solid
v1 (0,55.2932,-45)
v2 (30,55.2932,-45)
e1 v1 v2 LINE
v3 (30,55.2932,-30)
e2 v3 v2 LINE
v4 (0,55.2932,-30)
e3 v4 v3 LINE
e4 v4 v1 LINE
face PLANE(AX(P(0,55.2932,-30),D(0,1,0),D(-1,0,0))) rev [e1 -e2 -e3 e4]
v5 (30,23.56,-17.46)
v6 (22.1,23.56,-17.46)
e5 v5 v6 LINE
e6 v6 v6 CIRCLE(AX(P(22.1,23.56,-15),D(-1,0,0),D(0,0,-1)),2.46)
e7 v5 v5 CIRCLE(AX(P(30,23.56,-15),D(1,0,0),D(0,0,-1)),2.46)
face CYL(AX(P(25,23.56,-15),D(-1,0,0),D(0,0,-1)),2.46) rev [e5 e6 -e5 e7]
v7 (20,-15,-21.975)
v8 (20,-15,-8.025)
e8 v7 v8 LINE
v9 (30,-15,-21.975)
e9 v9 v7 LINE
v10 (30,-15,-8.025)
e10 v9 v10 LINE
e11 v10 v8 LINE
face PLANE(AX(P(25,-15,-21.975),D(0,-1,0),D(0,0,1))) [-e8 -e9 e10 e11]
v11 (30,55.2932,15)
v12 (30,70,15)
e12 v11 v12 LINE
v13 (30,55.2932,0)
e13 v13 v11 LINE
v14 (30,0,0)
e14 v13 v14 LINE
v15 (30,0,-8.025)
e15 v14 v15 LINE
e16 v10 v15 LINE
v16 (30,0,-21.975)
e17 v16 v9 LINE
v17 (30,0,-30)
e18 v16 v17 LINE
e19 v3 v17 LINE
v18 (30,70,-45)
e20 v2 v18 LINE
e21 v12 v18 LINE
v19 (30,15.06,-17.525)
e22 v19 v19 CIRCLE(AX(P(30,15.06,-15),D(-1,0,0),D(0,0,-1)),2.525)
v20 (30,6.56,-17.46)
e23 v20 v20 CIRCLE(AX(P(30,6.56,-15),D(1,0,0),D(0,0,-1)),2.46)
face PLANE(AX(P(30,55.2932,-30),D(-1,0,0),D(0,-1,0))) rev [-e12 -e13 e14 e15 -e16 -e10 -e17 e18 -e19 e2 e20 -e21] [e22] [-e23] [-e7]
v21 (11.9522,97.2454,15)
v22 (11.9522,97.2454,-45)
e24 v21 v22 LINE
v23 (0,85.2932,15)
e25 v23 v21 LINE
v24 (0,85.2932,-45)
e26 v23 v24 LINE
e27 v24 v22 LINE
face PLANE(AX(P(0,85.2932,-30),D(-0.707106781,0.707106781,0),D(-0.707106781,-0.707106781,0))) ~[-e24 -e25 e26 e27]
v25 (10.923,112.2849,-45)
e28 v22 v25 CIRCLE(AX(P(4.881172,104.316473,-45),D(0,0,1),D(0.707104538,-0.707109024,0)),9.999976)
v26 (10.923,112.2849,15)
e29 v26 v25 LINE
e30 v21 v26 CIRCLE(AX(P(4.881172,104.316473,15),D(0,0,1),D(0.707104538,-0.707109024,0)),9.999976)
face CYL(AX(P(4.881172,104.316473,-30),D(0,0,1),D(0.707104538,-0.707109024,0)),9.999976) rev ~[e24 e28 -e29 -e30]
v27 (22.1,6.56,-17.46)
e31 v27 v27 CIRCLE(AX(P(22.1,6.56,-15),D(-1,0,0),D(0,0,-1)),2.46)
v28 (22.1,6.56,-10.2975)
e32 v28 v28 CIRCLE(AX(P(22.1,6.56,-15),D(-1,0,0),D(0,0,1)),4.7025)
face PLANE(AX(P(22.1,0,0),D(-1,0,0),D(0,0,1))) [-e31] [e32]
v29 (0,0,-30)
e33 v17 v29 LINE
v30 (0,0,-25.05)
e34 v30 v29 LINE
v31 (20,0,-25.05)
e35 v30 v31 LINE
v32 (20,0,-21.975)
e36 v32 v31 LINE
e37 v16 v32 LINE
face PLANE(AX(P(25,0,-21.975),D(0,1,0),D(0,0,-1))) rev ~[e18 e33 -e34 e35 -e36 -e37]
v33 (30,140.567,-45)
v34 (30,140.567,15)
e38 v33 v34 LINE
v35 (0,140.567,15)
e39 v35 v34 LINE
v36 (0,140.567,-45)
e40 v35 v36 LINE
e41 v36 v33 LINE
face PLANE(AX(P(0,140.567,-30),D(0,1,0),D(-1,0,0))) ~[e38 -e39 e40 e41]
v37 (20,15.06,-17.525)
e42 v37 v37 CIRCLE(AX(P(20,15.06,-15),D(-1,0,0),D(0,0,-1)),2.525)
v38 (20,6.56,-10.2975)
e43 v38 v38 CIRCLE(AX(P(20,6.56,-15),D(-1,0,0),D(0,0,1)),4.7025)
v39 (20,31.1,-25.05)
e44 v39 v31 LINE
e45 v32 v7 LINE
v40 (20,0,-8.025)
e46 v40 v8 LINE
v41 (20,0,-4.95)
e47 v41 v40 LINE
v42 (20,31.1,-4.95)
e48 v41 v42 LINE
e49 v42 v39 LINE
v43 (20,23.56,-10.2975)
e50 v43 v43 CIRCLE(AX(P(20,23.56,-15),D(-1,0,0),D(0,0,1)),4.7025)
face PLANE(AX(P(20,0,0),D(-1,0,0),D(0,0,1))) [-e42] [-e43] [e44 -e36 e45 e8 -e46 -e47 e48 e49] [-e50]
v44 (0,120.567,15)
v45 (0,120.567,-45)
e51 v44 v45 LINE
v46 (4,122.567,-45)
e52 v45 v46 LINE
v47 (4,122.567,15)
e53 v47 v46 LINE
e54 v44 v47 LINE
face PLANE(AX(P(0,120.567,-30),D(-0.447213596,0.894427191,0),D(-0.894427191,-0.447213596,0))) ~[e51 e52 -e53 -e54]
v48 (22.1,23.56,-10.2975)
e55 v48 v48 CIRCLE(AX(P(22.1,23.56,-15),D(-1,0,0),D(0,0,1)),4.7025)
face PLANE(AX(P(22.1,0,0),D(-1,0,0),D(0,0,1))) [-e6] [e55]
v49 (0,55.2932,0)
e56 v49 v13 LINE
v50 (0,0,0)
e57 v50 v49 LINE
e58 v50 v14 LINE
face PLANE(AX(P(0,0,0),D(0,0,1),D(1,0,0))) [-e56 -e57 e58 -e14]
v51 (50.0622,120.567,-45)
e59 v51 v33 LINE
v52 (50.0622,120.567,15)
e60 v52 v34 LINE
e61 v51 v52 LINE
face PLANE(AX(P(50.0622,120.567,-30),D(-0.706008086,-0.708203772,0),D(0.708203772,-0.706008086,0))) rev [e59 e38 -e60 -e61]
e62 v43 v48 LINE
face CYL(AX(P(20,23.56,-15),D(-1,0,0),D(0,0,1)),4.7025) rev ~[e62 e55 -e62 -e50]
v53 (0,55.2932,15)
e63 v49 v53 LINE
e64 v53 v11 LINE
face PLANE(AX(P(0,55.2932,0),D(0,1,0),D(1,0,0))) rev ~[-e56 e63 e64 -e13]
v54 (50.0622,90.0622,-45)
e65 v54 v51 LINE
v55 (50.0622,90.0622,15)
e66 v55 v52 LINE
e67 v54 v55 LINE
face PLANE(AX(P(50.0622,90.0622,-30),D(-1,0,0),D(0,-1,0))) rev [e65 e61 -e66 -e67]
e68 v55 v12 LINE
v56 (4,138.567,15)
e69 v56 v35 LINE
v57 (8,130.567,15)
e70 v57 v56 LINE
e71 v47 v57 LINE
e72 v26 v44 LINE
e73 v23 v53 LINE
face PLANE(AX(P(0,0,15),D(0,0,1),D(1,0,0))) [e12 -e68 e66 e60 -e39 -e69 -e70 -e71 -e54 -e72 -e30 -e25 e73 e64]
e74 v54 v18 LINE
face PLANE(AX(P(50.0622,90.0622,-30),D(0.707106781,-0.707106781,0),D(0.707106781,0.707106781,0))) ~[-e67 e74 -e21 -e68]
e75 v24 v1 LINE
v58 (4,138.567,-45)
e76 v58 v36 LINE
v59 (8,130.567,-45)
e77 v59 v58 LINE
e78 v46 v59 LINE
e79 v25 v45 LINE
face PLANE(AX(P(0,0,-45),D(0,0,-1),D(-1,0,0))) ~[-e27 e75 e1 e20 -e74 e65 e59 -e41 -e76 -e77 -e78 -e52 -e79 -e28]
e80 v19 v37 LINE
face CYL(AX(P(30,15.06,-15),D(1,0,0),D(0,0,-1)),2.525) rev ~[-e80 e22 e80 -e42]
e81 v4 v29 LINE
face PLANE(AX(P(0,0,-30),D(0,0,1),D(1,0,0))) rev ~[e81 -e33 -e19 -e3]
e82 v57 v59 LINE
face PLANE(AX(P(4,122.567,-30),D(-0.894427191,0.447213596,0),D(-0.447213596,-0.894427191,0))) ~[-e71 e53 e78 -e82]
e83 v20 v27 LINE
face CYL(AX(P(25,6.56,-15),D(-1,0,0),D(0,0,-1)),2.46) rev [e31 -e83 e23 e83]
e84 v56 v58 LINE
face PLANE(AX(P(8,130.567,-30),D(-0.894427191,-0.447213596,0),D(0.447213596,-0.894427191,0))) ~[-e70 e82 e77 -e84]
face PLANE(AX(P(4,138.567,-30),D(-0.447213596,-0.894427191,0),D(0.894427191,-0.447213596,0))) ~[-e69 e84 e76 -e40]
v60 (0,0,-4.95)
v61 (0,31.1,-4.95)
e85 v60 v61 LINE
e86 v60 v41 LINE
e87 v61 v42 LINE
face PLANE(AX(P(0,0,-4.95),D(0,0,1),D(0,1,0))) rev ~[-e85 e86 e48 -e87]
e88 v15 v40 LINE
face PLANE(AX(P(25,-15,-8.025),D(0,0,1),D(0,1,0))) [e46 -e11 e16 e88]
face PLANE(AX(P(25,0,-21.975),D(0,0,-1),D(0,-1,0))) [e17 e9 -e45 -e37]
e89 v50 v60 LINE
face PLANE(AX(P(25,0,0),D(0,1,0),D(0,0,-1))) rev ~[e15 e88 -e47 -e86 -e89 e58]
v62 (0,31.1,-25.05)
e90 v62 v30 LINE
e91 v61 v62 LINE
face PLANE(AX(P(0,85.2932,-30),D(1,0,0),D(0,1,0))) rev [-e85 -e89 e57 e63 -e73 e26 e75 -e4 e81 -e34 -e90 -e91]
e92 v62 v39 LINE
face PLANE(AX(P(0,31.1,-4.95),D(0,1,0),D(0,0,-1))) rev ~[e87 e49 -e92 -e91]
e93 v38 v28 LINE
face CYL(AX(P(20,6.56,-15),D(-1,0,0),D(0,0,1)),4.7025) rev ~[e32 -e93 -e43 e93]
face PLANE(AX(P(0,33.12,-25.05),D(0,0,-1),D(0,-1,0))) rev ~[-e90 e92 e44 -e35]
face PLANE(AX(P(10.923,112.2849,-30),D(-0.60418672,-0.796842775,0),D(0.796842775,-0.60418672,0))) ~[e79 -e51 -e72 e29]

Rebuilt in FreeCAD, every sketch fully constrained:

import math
import FreeCAD as App
import Part
import Sketcher
from FreeCAD import Vector
Q = App.Units.Quantity


def add_polygon(sketch, points):
    """Adds a closed chain of lines whose ends are joined by coincident constraints."""
    first, n = sketch.GeometryCount, len(points)
    for a, b in zip(points, points[1:] + points[:1]):
        sketch.addGeometry(Part.LineSegment(App.Vector(*a, 0), App.Vector(*b, 0)), False)
    for i in range(n):
        sketch.addConstraint(Sketcher.Constraint("Coincident", first + i, 2, first + (i + 1) % n, 1))

doc = App.newDocument("Part")
body = doc.addObject("PartDesign::Body", "Body")

sketch1 = body.newObject("Sketcher::SketchObject", "Sketch")
sketch1.AttachmentSupport = (doc.getObject("XY_Plane"), [""])
sketch1.MapMode = "FlatFace"
add_polygon(sketch1, [(0, 40), (0, 0), (25, 0), (25, 40)])
sketch1.addConstraint(Sketcher.Constraint("Vertical", 0))
sketch1.addConstraint(Sketcher.Constraint("Horizontal", 1))
sketch1.addConstraint(Sketcher.Constraint("Vertical", 2))
sketch1.addConstraint(Sketcher.Constraint("Horizontal", 3))
sketch1.addConstraint(Sketcher.Constraint("Coincident", 0, 2, -1, 1))
sketch1.addConstraint(Sketcher.Constraint("DistanceX", 1, 1, 1, 2, Q("25 mm")))
sketch1.addConstraint(Sketcher.Constraint("DistanceY", 0, 2, 0, 1, Q("40 mm")))
pad1 = body.newObject("PartDesign::Pad", "Pad")
pad1.Profile = sketch1
pad1.Length = 30
pad1.Reversed = True

sketch2 = body.newObject("Sketcher::SketchObject", "Sketch001")
sketch2.AttachmentSupport = (doc.getObject("YZ_Plane"), [""])
sketch2.MapMode = "FlatFace"
sketch2.AttachmentOffset = App.Placement(Vector(0, 0, 25), App.Rotation())
sketch2.addGeometry(Part.Circle(Vector(6.6, -15, 0), Vector(0, 0, 1), 2.5), False)
sketch2.addConstraint(Sketcher.Constraint("Diameter", 0, Q("4.92 mm")))
sketch2.addConstraint(Sketcher.Constraint("DistanceY", 0, 3, -1, 1, Q("15 mm")))
sketch2.addConstraint(Sketcher.Constraint("DistanceX", -1, 1, 0, 3, Q("6.56 mm")))
pocket1 = body.newObject("PartDesign::Pocket", "Pocket")
pocket1.Profile = sketch2
pocket1.Length = 30

sketch3 = body.newObject("Sketcher::SketchObject", "Sketch002")
sketch3.AttachmentSupport = (doc.getObject("YZ_Plane"), [""])
sketch3.MapMode = "FlatFace"
add_polygon(sketch3, [(0, -25), (0, -5), (33, -5), (33, -25)])
sketch3.addConstraint(Sketcher.Constraint("Vertical", 0))
sketch3.addConstraint(Sketcher.Constraint("Horizontal", 1))
sketch3.addConstraint(Sketcher.Constraint("Vertical", 2))
sketch3.addConstraint(Sketcher.Constraint("Horizontal", 3))
sketch3.addConstraint(Sketcher.Constraint("PointOnObject", 0, 2, -2))
sketch3.addConstraint(Sketcher.Constraint("DistanceY", 0, 1, 0, 2, Q("20.1 mm")))
sketch3.addConstraint(Sketcher.Constraint("DistanceX", 1, 1, 1, 2, Q("33.12 mm")))
sketch3.addConstraint(Sketcher.Constraint("DistanceY", 0, 2, -1, 1, Q("4.95 mm")))
pocket2 = body.newObject("PartDesign::Pocket", "Pocket001")
pocket2.Profile = sketch3
pocket2.Length = 20
pocket2.Reversed = True

sketch4 = body.newObject("Sketcher::SketchObject", "Sketch003")
sketch4.AttachmentSupport = (doc.getObject("XZ_Plane"), [""])
sketch4.MapMode = "FlatFace"
add_polygon(sketch4, [(25, -8), (20, -8), (20, -22), (25, -22)])
sketch4.addConstraint(Sketcher.Constraint("Horizontal", 0))
sketch4.addConstraint(Sketcher.Constraint("Vertical", 1))
sketch4.addConstraint(Sketcher.Constraint("Horizontal", 2))
sketch4.addConstraint(Sketcher.Constraint("Vertical", 3))
sketch4.addConstraint(Sketcher.Constraint("DistanceY", 1, 2, 1, 1, Q("13.95 mm")))
sketch4.addConstraint(Sketcher.Constraint("DistanceX", 0, 2, 0, 1, Q("5 mm")))
sketch4.addConstraint(Sketcher.Constraint("DistanceX", -1, 1, 0, 2, Q("20 mm")))
sketch4.addConstraint(Sketcher.Constraint("DistanceY", 0, 2, -1, 1, Q("8.025 mm")))
pad2 = body.newObject("PartDesign::Pad", "Pad001")
pad2.Profile = sketch4
pad2.Length = 15

sketch5 = body.newObject("Sketcher::SketchObject", "Sketch004")
sketch5.AttachmentSupport = (doc.getObject("YZ_Plane"), [""])
sketch5.MapMode = "FlatFace"
sketch5.AttachmentOffset = App.Placement(Vector(0, 0, 20), App.Rotation())
sketch5.addGeometry(Part.Circle(Vector(6.6, -15, 0), Vector(0, 0, 1), 4.7), False)
sketch5.addGeometry(Part.Circle(Vector(6.6, -15, 0), Vector(0, 0, 1), 2.5), False)
sketch5.addConstraint(Sketcher.Constraint("Coincident", 1, 3, 0, 3))
sketch5.addConstraint(Sketcher.Constraint("Diameter", 0, Q("9.405 mm")))
sketch5.addConstraint(Sketcher.Constraint("Diameter", 1, Q("4.92 mm")))
sketch5.addConstraint(Sketcher.Constraint("DistanceY", 0, 3, -1, 1, Q("15 mm")))
sketch5.addConstraint(Sketcher.Constraint("DistanceX", -1, 1, 0, 3, Q("6.56 mm")))
pocket3 = body.newObject("PartDesign::Pocket", "Pocket002")
pocket3.Profile = sketch5
pocket3.Length = 2.1
pocket3.Reversed = True

sketch6 = body.newObject("Sketcher::SketchObject", "Sketch005")
sketch6.AttachmentSupport = (doc.getObject("YZ_Plane"), [""])
sketch6.MapMode = "FlatFace"
sketch6.AttachmentOffset = App.Placement(Vector(0, 0, 25), App.Rotation())
sketch6.addGeometry(Part.Circle(Vector(23.6, -15, 0), Vector(0, 0, 1), 2.5), False)
sketch6.addConstraint(Sketcher.Constraint("Diameter", 0, Q("4.92 mm")))
sketch6.addConstraint(Sketcher.Constraint("DistanceY", 0, 3, -1, 1, Q("15 mm")))
sketch6.addConstraint(Sketcher.Constraint("DistanceX", -1, 1, 0, 3, Q("23.56 mm")))
pocket4 = body.newObject("PartDesign::Pocket", "Pocket003")
pocket4.Profile = sketch6
pocket4.Length = 10

sketch7 = body.newObject("Sketcher::SketchObject", "Sketch006")
sketch7.AttachmentSupport = (doc.getObject("YZ_Plane"), [""])
sketch7.MapMode = "FlatFace"
sketch7.AttachmentOffset = App.Placement(Vector(0, 0, 20), App.Rotation())
sketch7.addGeometry(Part.Circle(Vector(23.6, -15, 0), Vector(0, 0, 1), 4.7), False)
sketch7.addGeometry(Part.Circle(Vector(23.6, -15, 0), Vector(0, 0, 1), 2.5), False)
sketch7.addConstraint(Sketcher.Constraint("Coincident", 1, 3, 0, 3))
sketch7.addConstraint(Sketcher.Constraint("Diameter", 0, Q("9.405 mm")))
sketch7.addConstraint(Sketcher.Constraint("Diameter", 1, Q("4.92 mm")))
sketch7.addConstraint(Sketcher.Constraint("DistanceY", 0, 3, -1, 1, Q("15 mm")))
sketch7.addConstraint(Sketcher.Constraint("DistanceX", -1, 1, 0, 3, Q("23.56 mm")))
pocket5 = body.newObject("PartDesign::Pocket", "Pocket004")
pocket5.Profile = sketch7
pocket5.Length = 2.1
pocket5.Reversed = True

sketch8 = body.newObject("Sketcher::SketchObject", "Sketch007")
sketch8.AttachmentSupport = (doc.getObject("YZ_Plane"), [""])
sketch8.MapMode = "FlatFace"
sketch8.AttachmentOffset = App.Placement(Vector(0, 0, 25), App.Rotation())
add_polygon(sketch8, [(0, -30), (40, -30), (40, 0), (0, 0), (0, -8), (-15, -8), (-15, -22), (0, -22)])
sketch8.addGeometry(Part.Circle(Vector(6.6, -15, 0), Vector(0, 0, 1), 2.5), False)
sketch8.addGeometry(Part.Circle(Vector(23.6, -15, 0), Vector(0, 0, 1), 2.5), False)
sketch8.addConstraint(Sketcher.Constraint("Horizontal", 0))
sketch8.addConstraint(Sketcher.Constraint("Vertical", 1))
sketch8.addConstraint(Sketcher.Constraint("Horizontal", 2))
sketch8.addConstraint(Sketcher.Constraint("Vertical", 3))
sketch8.addConstraint(Sketcher.Constraint("Horizontal", 4))
sketch8.addConstraint(Sketcher.Constraint("Vertical", 5))
sketch8.addConstraint(Sketcher.Constraint("Horizontal", 6))
sketch8.addConstraint(Sketcher.Constraint("Vertical", 7))
sketch8.addConstraint(Sketcher.Constraint("Coincident", 2, 2, -1, 1))
sketch8.addConstraint(Sketcher.Constraint("Equal", 8, 9))
sketch8.addConstraint(Sketcher.Constraint("PointOnObject", 6, 2, -2))
sketch8.addConstraint(Sketcher.Constraint("Horizontal", 8, 3, 9, 3))
sketch8.addConstraint(Sketcher.Constraint("Equal", 3, 7))
sketch8.addConstraint(Sketcher.Constraint("Diameter", 8, Q("4.92 mm")))
sketch8.addConstraint(Sketcher.Constraint("DistanceX", 0, 1, 0, 2, Q("40 mm")))
sketch8.addConstraint(Sketcher.Constraint("DistanceX", 4, 2, 4, 1, Q("15 mm")))
sketch8.addConstraint(Sketcher.Constraint("DistanceY", 1, 1, 1, 2, Q("30 mm")))
sketch8.addConstraint(Sketcher.Constraint("DistanceY", 8, 3, -1, 1, Q("15 mm")))
sketch8.addConstraint(Sketcher.Constraint("DistanceX", 8, 3, 9, 3, Q("17 mm")))
sketch8.addConstraint(Sketcher.Constraint("DistanceY", 5, 2, 5, 1, Q("13.95 mm")))
sketch8.addConstraint(Sketcher.Constraint("DistanceX", -1, 1, 8, 3, Q("6.56 mm")))
pad3 = body.newObject("PartDesign::Pad", "Pad002")
pad3.Profile = sketch8
pad3.Length = 5

sketch9 = body.newObject("Sketcher::SketchObject", "Sketch008")
sketch9.AttachmentSupport = (doc.getObject("XZ_Plane"), [""])
sketch9.MapMode = "FlatFace"
sketch9.AttachmentOffset = App.Placement(Vector(0, 0, -40), App.Rotation())
add_polygon(sketch9, [(30, -30), (0, -30), (0, 0), (30, 0)])
sketch9.addConstraint(Sketcher.Constraint("Horizontal", 0))
sketch9.addConstraint(Sketcher.Constraint("Vertical", 1))
sketch9.addConstraint(Sketcher.Constraint("Horizontal", 2))
sketch9.addConstraint(Sketcher.Constraint("Vertical", 3))
sketch9.addConstraint(Sketcher.Constraint("Coincident", 1, 2, -1, 1))
sketch9.addConstraint(Sketcher.Constraint("Equal", 2, 1))
sketch9.addConstraint(Sketcher.Constraint("DistanceX", 0, 2, 0, 1, Q("30 mm")))
pad4 = body.newObject("PartDesign::Pad", "Pad003")
pad4.Profile = sketch9
pad4.Length = 30
pad4.Reversed = True

sketch10 = body.newObject("Sketcher::SketchObject", "Sketch009")
sketch10.AttachmentSupport = (doc.getObject("YZ_Plane"), [""])
sketch10.MapMode = "FlatFace"
sketch10.AttachmentOffset = App.Placement(Vector(0, 0, 30), App.Rotation())
sketch10.addGeometry(Part.Circle(Vector(15.1, -15, 0), Vector(0, 0, 1), 2.5), False)
sketch10.addConstraint(Sketcher.Constraint("Diameter", 0, Q("5.05 mm")))
sketch10.addConstraint(Sketcher.Constraint("DistanceY", 0, 3, -1, 1, Q("15 mm")))
sketch10.addConstraint(Sketcher.Constraint("DistanceX", -1, 1, 0, 3, Q("15.06 mm")))
pocket6 = body.newObject("PartDesign::Pocket", "Pocket005")
pocket6.Profile = sketch10
pocket6.Length = 30

sketch11 = body.newObject("Sketcher::SketchObject", "Sketch010")
sketch11.AttachmentSupport = (doc.getObject("YZ_Plane"), [""])
sketch11.MapMode = "FlatFace"
add_polygon(sketch11, [(33.1, -5), (33.1, -25.1), (31.1, -25.1), (31.1, -5)])
sketch11.addConstraint(Sketcher.Constraint("Vertical", 0))
sketch11.addConstraint(Sketcher.Constraint("Horizontal", 1))
sketch11.addConstraint(Sketcher.Constraint("Vertical", 2))
sketch11.addConstraint(Sketcher.Constraint("Horizontal", 3))
sketch11.addConstraint(Sketcher.Constraint("DistanceX", 1, 2, 1, 1, Q("2.02 mm")))
sketch11.addConstraint(Sketcher.Constraint("DistanceY", 0, 2, 0, 1, Q("20.1 mm")))
sketch11.addConstraint(Sketcher.Constraint("DistanceX", -1, 1, 1, 2, Q("31.1 mm")))
sketch11.addConstraint(Sketcher.Constraint("DistanceY", 0, 2, -1, 1, Q("25.05 mm")))
pad5 = body.newObject("PartDesign::Pad", "Pad004")
pad5.Profile = sketch11
pad5.Length = 20

sketch12 = body.newObject("Sketcher::SketchObject", "Sketch011")
sketch12.AttachmentSupport = (doc.getObject("XY_Plane"), [""])
sketch12.MapMode = "FlatFace"
sketch12.addGeometry(Part.LineSegment(Vector(0, 85.3, 0), Vector(0, 70, 0)), False)
sketch12.addGeometry(Part.LineSegment(Vector(0, 70, 0), Vector(30, 70, 0)), False)
sketch12.addGeometry(Part.LineSegment(Vector(30, 70, 0), Vector(50.1, 90.1, 0)), False)
sketch12.addGeometry(Part.LineSegment(Vector(50.1, 90.1, 0), Vector(50.1, 120.6, 0)), False)
sketch12.addGeometry(Part.LineSegment(Vector(50.1, 120.6, 0), Vector(30, 140.6, 0)), False)
sketch12.addGeometry(Part.LineSegment(Vector(30, 140.6, 0), Vector(0, 140.6, 0)), False)
sketch12.addGeometry(Part.LineSegment(Vector(0, 140.6, 0), Vector(4, 138.6, 0)), False)
sketch12.addGeometry(Part.LineSegment(Vector(4, 138.6, 0), Vector(8, 130.6, 0)), False)
sketch12.addGeometry(Part.LineSegment(Vector(8, 130.6, 0), Vector(4, 122.6, 0)), False)
sketch12.addGeometry(Part.LineSegment(Vector(4, 122.6, 0), Vector(0, 120.6, 0)), False)
sketch12.addGeometry(Part.LineSegment(Vector(0, 120.6, 0), Vector(10.9, 112.3, 0)), False)
sketch12.addGeometry(Part.ArcOfCircle(Part.Circle(Vector(4.9, 104.3, 0), Vector(0, 0, 1), 10), math.radians(-45), math.radians(53)), False)
sketch12.addGeometry(Part.LineSegment(Vector(12, 97.2, 0), Vector(0, 85.3, 0)), False)
sketch12.addConstraint(Sketcher.Constraint("Coincident", 0, 2, 1, 1))
sketch12.addConstraint(Sketcher.Constraint("Coincident", 1, 2, 2, 1))
sketch12.addConstraint(Sketcher.Constraint("Coincident", 2, 2, 3, 1))
sketch12.addConstraint(Sketcher.Constraint("Coincident", 3, 2, 4, 1))
sketch12.addConstraint(Sketcher.Constraint("Coincident", 4, 2, 5, 1))
sketch12.addConstraint(Sketcher.Constraint("Coincident", 5, 2, 6, 1))
sketch12.addConstraint(Sketcher.Constraint("Coincident", 6, 2, 7, 1))
sketch12.addConstraint(Sketcher.Constraint("Coincident", 7, 2, 8, 1))
sketch12.addConstraint(Sketcher.Constraint("Coincident", 8, 2, 9, 1))
sketch12.addConstraint(Sketcher.Constraint("Coincident", 9, 2, 10, 1))
sketch12.addConstraint(Sketcher.Constraint("Tangent", 10, 2, 11, 2))
sketch12.addConstraint(Sketcher.Constraint("Tangent", 11, 1, 12, 1))
sketch12.addConstraint(Sketcher.Constraint("Coincident", 12, 2, 0, 1))
sketch12.addConstraint(Sketcher.Constraint("Vertical", 0))
sketch12.addConstraint(Sketcher.Constraint("Horizontal", 1))
sketch12.addConstraint(Sketcher.Constraint("Vertical", 3))
sketch12.addConstraint(Sketcher.Constraint("Horizontal", 5))
sketch12.addConstraint(Sketcher.Constraint("PointOnObject", 0, 2, -2))
sketch12.addConstraint(Sketcher.Constraint("PointOnObject", 5, 2, -2))
sketch12.addConstraint(Sketcher.Constraint("PointOnObject", 9, 2, -2))
sketch12.addConstraint(Sketcher.Constraint("Perpendicular", 6, 8))
sketch12.addConstraint(Sketcher.Constraint("Perpendicular", 7, 9))
sketch12.addConstraint(Sketcher.Constraint("Parallel", 2, 12))
sketch12.addConstraint(Sketcher.Constraint("Horizontal", 3, 2, 9, 2))
sketch12.addConstraint(Sketcher.Constraint("Vertical", 1, 2, 4, 2))
sketch12.addConstraint(Sketcher.Constraint("Vertical", 6, 2, 8, 2))
sketch12.addConstraint(Sketcher.Constraint("Equal", 7, 8))
sketch12.addConstraint(Sketcher.Constraint("Radius", 11, Q("10 mm")))
sketch12.addConstraint(Sketcher.Constraint("Angle", 2, Q("45 deg")))
sketch12.addConstraint(Sketcher.Constraint("DistanceY", 7, 2, 5, 2, Q("10 mm")))
sketch12.addConstraint(Sketcher.Constraint("DistanceX", 1, 1, 1, 2, Q("30 mm")))
sketch12.addConstraint(Sketcher.Constraint("DistanceY", -1, 1, 0, 2, Q("70 mm")))
sketch12.addConstraint(Sketcher.Constraint("DistanceX", -1, 1, 6, 2, Q("4 mm")))
sketch12.addConstraint(Sketcher.Constraint("DistanceX", -1, 1, 7, 2, Q("8 mm")))
sketch12.addConstraint(Sketcher.Constraint("Angle", 4, Q("135.089 deg")))
sketch12.addConstraint(Sketcher.Constraint("Angle", 10, Q("-37.1703 deg")))
sketch12.addConstraint(Sketcher.Constraint("Distance", 12, Q("16.903 mm")))
sketch12.addConstraint(Sketcher.Constraint("DistanceY", 0, 2, 0, 1, Q("15.2932 mm")))
pad6 = body.newObject("PartDesign::Pad", "Pad005")
pad6.Profile = sketch12
pad6.Length = 30
pad6.Reversed = True

sketch13 = body.newObject("Sketcher::SketchObject", "Sketch012")
sketch13.AttachmentSupport = (doc.getObject("XY_Plane"), [""])
sketch13.MapMode = "FlatFace"
sketch13.addGeometry(Part.LineSegment(Vector(30, 70, 0), Vector(50.1, 90.1, 0)), False)
sketch13.addGeometry(Part.LineSegment(Vector(50.1, 90.1, 0), Vector(50.1, 120.6, 0)), False)
sketch13.addGeometry(Part.LineSegment(Vector(50.1, 120.6, 0), Vector(30, 140.6, 0)), False)
sketch13.addGeometry(Part.LineSegment(Vector(30, 140.6, 0), Vector(0, 140.6, 0)), False)
sketch13.addGeometry(Part.LineSegment(Vector(0, 140.6, 0), Vector(4, 138.6, 0)), False)
sketch13.addGeometry(Part.LineSegment(Vector(4, 138.6, 0), Vector(8, 130.6, 0)), False)
sketch13.addGeometry(Part.LineSegment(Vector(8, 130.6, 0), Vector(4, 122.6, 0)), False)
sketch13.addGeometry(Part.LineSegment(Vector(4, 122.6, 0), Vector(0, 120.6, 0)), False)
sketch13.addGeometry(Part.LineSegment(Vector(0, 120.6, 0), Vector(10.9, 112.3, 0)), False)
sketch13.addGeometry(Part.ArcOfCircle(Part.Circle(Vector(4.9, 104.3, 0), Vector(0, 0, 1), 10), math.radians(-45), math.radians(53)), False)
sketch13.addGeometry(Part.LineSegment(Vector(12, 97.2, 0), Vector(0, 85.3, 0)), False)
sketch13.addGeometry(Part.LineSegment(Vector(0, 85.3, 0), Vector(0, 55.3, 0)), False)
sketch13.addGeometry(Part.LineSegment(Vector(0, 55.3, 0), Vector(30, 55.3, 0)), False)
sketch13.addGeometry(Part.LineSegment(Vector(30, 55.3, 0), Vector(30, 70, 0)), False)
sketch13.addConstraint(Sketcher.Constraint("Coincident", 0, 2, 1, 1))
sketch13.addConstraint(Sketcher.Constraint("Coincident", 1, 2, 2, 1))
sketch13.addConstraint(Sketcher.Constraint("Coincident", 2, 2, 3, 1))
sketch13.addConstraint(Sketcher.Constraint("Coincident", 3, 2, 4, 1))
sketch13.addConstraint(Sketcher.Constraint("Coincident", 4, 2, 5, 1))
sketch13.addConstraint(Sketcher.Constraint("Coincident", 5, 2, 6, 1))
sketch13.addConstraint(Sketcher.Constraint("Coincident", 6, 2, 7, 1))
sketch13.addConstraint(Sketcher.Constraint("Coincident", 7, 2, 8, 1))
sketch13.addConstraint(Sketcher.Constraint("Tangent", 8, 2, 9, 2))
sketch13.addConstraint(Sketcher.Constraint("Tangent", 9, 1, 10, 1))
sketch13.addConstraint(Sketcher.Constraint("Coincident", 10, 2, 11, 1))
sketch13.addConstraint(Sketcher.Constraint("Coincident", 11, 2, 12, 1))
sketch13.addConstraint(Sketcher.Constraint("Coincident", 12, 2, 13, 1))
sketch13.addConstraint(Sketcher.Constraint("Coincident", 13, 2, 0, 1))
sketch13.addConstraint(Sketcher.Constraint("Vertical", 1))
sketch13.addConstraint(Sketcher.Constraint("Horizontal", 3))
sketch13.addConstraint(Sketcher.Constraint("Vertical", 11))
sketch13.addConstraint(Sketcher.Constraint("Horizontal", 12))
sketch13.addConstraint(Sketcher.Constraint("Vertical", 13))
sketch13.addConstraint(Sketcher.Constraint("PointOnObject", 3, 2, -2))
sketch13.addConstraint(Sketcher.Constraint("PointOnObject", 7, 2, -2))
sketch13.addConstraint(Sketcher.Constraint("PointOnObject", 10, 2, -2))
sketch13.addConstraint(Sketcher.Constraint("Perpendicular", 4, 6))
sketch13.addConstraint(Sketcher.Constraint("Perpendicular", 5, 7))
sketch13.addConstraint(Sketcher.Constraint("Parallel", 0, 10))
sketch13.addConstraint(Sketcher.Constraint("Horizontal", 1, 2, 7, 2))
sketch13.addConstraint(Sketcher.Constraint("Vertical", 4, 2, 6, 2))
sketch13.addConstraint(Sketcher.Constraint("Vertical", 2, 2, 12, 2))
sketch13.addConstraint(Sketcher.Constraint("Equal", 12, 11))
sketch13.addConstraint(Sketcher.Constraint("Equal", 5, 6))
sketch13.addConstraint(Sketcher.Constraint("DistanceX", 3, 2, 3, 1, Q("30 mm")))
sketch13.addConstraint(Sketcher.Constraint("Radius", 9, Q("10 mm")))
sketch13.addConstraint(Sketcher.Constraint("Angle", 0, Q("45 deg")))
sketch13.addConstraint(Sketcher.Constraint("DistanceX", -1, 1, 4, 2, Q("4 mm")))
sketch13.addConstraint(Sketcher.Constraint("DistanceX", -1, 1, 5, 2, Q("8 mm")))
sketch13.addConstraint(Sketcher.Constraint("DistanceY", -1, 1, 13, 2, Q("70 mm")))
sketch13.addConstraint(Sketcher.Constraint("DistanceY", 1, 2, 2, 2, Q("20 mm")))
sketch13.addConstraint(Sketcher.Constraint("Angle", 2, Q("135.089 deg")))
sketch13.addConstraint(Sketcher.Constraint("Angle", 8, Q("-37.1703 deg")))
sketch13.addConstraint(Sketcher.Constraint("Distance", 10, Q("16.903 mm")))
sketch13.addConstraint(Sketcher.Constraint("DistanceY", 1, 1, 1, 2, Q("30.5048 mm")))
pad7 = body.newObject("PartDesign::Pad", "Pad006")
pad7.Profile = sketch13
pad7.Length = 15
doc.recompute()

datumplane = body.newObject("PartDesign::Plane", "DatumPlane")
datumplane.AttachmentSupport = (doc.getObject("XY_Plane"), [""])
datumplane.MapMode = "FlatFace"
datumplane.AttachmentOffset = App.Placement(Vector(0, 0, -15), App.Rotation())
mirrored = body.newObject("PartDesign::Mirrored", "Mirrored")
mirrored.Originals = [pad7]
mirrored.MirrorPlane = (datumplane, [""])
body.Tip = mirrored

doc.recompute()
